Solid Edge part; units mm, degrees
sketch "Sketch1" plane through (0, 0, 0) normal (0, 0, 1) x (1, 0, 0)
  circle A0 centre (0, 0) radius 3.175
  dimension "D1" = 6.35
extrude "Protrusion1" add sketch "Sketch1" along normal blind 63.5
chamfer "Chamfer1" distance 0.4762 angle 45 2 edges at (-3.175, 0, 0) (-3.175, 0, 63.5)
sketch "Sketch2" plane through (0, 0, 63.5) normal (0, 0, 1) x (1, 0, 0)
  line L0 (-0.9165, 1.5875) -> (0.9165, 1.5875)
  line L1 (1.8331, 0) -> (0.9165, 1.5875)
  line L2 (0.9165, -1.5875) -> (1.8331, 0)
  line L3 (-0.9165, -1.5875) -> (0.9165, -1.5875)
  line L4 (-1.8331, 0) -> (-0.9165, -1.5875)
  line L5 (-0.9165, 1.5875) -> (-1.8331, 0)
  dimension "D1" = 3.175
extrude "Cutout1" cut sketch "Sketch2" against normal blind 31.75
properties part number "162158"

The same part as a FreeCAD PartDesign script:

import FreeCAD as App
import Part
import Sketcher

V = App.Vector
Q = App.Units.Quantity


def edges_at(feature, points):
    """Names of the edges that pass closest to the given points."""
    edges = feature.Shape.Edges
    near = lambda p: min(range(len(edges)), key=lambda i: edges[i].distToShape(Part.Vertex(*p))[0])
    return sorted({f"Edge{near(p) + 1}" for p in points})

doc = App.newDocument("Part")
body = doc.addObject("PartDesign::Body", "Body")

sketch1 = body.newObject("Sketcher::SketchObject", "Sketch")
sketch1.AttachmentSupport = (doc.getObject("XY_Plane"), [""])
sketch1.MapMode = "FlatFace"
sketch1.addGeometry(Part.Circle(V(0, 0, 0), V(0, 0, 1), 3.175), False)
sketch1.addConstraint([
    Sketcher.Constraint("Coincident", 0, 3, -1, 1),
    Sketcher.Constraint("Diameter", 0, Q("0.25 in")),
])
pad1 = body.newObject("PartDesign::Pad", "Pad")
pad1.Profile = sketch1
pad1.Length = Q("2.5 in")
doc.recompute()

chamfer = body.newObject("PartDesign::Chamfer", "Chamfer")
chamfer.Base = (pad1, edges_at(pad1, [(-3.175, 0, 0), (-3.175, 0, 63.5)]))
chamfer.Size = 0.4762

sketch2 = body.newObject("Sketcher::SketchObject", "Sketch001")
sketch2.AttachmentSupport = (doc.getObject("XY_Plane"), [""])
sketch2.MapMode = "FlatFace"
sketch2.AttachmentOffset = App.Placement(V(0, 0, 2.5 * 25.4), App.Rotation())
sketch2.addGeometry([
    Part.LineSegment(V(0.9165, 1.5875, 0), V(-0.9165, 1.5875, 0)),
    Part.LineSegment(V(-0.9165, 1.5875, 0), V(-1.8331, 0, 0)),
    Part.LineSegment(V(-1.8331, 0, 0), V(-0.9165, -1.5875, 0)),
    Part.LineSegment(V(-0.9165, -1.5875, 0), V(0.9165, -1.5875, 0)),
    Part.LineSegment(V(0.9165, -1.5875, 0), V(1.8331, 0, 0)),
    Part.LineSegment(V(1.8331, 0, 0), V(0.9165, 1.5875, 0)),
], False)
sketch2.addConstraint([
    Sketcher.Constraint("Coincident", 0, 2, 1, 1),
    Sketcher.Constraint("Coincident", 1, 2, 2, 1),
    Sketcher.Constraint("Coincident", 2, 2, 3, 1),
    Sketcher.Constraint("Coincident", 3, 2, 4, 1),
    Sketcher.Constraint("Coincident", 4, 2, 5, 1),
    Sketcher.Constraint("Coincident", 5, 2, 0, 1),
    Sketcher.Constraint("Horizontal", 0),
    Sketcher.Constraint("Horizontal", 3),
    Sketcher.Constraint("Symmetric", 0, 2, 3, 2, -1, 1),
    Sketcher.Constraint("Symmetric", 1, 2, 4, 2, -1, 1),
    Sketcher.Constraint("PointOnObject", 1, 2, -1),
    Sketcher.Constraint("Parallel", 2, 5),
    Sketcher.Constraint("Vertical", 0, 2, 2, 2),
    Sketcher.Constraint("DistanceY", -1, 1, 0, 2, Q("0.0625 in")),
    Sketcher.Constraint("DistanceX", 0, 2, 0, 1, Q("1.833 mm")),
    Sketcher.Constraint("Distance", 1, Q("1.833 mm")),
])
pocket1 = body.newObject("PartDesign::Pocket", "Pocket")
pocket1.Profile = sketch2
pocket1.Length = Q("1.25 in")

doc.recompute()
